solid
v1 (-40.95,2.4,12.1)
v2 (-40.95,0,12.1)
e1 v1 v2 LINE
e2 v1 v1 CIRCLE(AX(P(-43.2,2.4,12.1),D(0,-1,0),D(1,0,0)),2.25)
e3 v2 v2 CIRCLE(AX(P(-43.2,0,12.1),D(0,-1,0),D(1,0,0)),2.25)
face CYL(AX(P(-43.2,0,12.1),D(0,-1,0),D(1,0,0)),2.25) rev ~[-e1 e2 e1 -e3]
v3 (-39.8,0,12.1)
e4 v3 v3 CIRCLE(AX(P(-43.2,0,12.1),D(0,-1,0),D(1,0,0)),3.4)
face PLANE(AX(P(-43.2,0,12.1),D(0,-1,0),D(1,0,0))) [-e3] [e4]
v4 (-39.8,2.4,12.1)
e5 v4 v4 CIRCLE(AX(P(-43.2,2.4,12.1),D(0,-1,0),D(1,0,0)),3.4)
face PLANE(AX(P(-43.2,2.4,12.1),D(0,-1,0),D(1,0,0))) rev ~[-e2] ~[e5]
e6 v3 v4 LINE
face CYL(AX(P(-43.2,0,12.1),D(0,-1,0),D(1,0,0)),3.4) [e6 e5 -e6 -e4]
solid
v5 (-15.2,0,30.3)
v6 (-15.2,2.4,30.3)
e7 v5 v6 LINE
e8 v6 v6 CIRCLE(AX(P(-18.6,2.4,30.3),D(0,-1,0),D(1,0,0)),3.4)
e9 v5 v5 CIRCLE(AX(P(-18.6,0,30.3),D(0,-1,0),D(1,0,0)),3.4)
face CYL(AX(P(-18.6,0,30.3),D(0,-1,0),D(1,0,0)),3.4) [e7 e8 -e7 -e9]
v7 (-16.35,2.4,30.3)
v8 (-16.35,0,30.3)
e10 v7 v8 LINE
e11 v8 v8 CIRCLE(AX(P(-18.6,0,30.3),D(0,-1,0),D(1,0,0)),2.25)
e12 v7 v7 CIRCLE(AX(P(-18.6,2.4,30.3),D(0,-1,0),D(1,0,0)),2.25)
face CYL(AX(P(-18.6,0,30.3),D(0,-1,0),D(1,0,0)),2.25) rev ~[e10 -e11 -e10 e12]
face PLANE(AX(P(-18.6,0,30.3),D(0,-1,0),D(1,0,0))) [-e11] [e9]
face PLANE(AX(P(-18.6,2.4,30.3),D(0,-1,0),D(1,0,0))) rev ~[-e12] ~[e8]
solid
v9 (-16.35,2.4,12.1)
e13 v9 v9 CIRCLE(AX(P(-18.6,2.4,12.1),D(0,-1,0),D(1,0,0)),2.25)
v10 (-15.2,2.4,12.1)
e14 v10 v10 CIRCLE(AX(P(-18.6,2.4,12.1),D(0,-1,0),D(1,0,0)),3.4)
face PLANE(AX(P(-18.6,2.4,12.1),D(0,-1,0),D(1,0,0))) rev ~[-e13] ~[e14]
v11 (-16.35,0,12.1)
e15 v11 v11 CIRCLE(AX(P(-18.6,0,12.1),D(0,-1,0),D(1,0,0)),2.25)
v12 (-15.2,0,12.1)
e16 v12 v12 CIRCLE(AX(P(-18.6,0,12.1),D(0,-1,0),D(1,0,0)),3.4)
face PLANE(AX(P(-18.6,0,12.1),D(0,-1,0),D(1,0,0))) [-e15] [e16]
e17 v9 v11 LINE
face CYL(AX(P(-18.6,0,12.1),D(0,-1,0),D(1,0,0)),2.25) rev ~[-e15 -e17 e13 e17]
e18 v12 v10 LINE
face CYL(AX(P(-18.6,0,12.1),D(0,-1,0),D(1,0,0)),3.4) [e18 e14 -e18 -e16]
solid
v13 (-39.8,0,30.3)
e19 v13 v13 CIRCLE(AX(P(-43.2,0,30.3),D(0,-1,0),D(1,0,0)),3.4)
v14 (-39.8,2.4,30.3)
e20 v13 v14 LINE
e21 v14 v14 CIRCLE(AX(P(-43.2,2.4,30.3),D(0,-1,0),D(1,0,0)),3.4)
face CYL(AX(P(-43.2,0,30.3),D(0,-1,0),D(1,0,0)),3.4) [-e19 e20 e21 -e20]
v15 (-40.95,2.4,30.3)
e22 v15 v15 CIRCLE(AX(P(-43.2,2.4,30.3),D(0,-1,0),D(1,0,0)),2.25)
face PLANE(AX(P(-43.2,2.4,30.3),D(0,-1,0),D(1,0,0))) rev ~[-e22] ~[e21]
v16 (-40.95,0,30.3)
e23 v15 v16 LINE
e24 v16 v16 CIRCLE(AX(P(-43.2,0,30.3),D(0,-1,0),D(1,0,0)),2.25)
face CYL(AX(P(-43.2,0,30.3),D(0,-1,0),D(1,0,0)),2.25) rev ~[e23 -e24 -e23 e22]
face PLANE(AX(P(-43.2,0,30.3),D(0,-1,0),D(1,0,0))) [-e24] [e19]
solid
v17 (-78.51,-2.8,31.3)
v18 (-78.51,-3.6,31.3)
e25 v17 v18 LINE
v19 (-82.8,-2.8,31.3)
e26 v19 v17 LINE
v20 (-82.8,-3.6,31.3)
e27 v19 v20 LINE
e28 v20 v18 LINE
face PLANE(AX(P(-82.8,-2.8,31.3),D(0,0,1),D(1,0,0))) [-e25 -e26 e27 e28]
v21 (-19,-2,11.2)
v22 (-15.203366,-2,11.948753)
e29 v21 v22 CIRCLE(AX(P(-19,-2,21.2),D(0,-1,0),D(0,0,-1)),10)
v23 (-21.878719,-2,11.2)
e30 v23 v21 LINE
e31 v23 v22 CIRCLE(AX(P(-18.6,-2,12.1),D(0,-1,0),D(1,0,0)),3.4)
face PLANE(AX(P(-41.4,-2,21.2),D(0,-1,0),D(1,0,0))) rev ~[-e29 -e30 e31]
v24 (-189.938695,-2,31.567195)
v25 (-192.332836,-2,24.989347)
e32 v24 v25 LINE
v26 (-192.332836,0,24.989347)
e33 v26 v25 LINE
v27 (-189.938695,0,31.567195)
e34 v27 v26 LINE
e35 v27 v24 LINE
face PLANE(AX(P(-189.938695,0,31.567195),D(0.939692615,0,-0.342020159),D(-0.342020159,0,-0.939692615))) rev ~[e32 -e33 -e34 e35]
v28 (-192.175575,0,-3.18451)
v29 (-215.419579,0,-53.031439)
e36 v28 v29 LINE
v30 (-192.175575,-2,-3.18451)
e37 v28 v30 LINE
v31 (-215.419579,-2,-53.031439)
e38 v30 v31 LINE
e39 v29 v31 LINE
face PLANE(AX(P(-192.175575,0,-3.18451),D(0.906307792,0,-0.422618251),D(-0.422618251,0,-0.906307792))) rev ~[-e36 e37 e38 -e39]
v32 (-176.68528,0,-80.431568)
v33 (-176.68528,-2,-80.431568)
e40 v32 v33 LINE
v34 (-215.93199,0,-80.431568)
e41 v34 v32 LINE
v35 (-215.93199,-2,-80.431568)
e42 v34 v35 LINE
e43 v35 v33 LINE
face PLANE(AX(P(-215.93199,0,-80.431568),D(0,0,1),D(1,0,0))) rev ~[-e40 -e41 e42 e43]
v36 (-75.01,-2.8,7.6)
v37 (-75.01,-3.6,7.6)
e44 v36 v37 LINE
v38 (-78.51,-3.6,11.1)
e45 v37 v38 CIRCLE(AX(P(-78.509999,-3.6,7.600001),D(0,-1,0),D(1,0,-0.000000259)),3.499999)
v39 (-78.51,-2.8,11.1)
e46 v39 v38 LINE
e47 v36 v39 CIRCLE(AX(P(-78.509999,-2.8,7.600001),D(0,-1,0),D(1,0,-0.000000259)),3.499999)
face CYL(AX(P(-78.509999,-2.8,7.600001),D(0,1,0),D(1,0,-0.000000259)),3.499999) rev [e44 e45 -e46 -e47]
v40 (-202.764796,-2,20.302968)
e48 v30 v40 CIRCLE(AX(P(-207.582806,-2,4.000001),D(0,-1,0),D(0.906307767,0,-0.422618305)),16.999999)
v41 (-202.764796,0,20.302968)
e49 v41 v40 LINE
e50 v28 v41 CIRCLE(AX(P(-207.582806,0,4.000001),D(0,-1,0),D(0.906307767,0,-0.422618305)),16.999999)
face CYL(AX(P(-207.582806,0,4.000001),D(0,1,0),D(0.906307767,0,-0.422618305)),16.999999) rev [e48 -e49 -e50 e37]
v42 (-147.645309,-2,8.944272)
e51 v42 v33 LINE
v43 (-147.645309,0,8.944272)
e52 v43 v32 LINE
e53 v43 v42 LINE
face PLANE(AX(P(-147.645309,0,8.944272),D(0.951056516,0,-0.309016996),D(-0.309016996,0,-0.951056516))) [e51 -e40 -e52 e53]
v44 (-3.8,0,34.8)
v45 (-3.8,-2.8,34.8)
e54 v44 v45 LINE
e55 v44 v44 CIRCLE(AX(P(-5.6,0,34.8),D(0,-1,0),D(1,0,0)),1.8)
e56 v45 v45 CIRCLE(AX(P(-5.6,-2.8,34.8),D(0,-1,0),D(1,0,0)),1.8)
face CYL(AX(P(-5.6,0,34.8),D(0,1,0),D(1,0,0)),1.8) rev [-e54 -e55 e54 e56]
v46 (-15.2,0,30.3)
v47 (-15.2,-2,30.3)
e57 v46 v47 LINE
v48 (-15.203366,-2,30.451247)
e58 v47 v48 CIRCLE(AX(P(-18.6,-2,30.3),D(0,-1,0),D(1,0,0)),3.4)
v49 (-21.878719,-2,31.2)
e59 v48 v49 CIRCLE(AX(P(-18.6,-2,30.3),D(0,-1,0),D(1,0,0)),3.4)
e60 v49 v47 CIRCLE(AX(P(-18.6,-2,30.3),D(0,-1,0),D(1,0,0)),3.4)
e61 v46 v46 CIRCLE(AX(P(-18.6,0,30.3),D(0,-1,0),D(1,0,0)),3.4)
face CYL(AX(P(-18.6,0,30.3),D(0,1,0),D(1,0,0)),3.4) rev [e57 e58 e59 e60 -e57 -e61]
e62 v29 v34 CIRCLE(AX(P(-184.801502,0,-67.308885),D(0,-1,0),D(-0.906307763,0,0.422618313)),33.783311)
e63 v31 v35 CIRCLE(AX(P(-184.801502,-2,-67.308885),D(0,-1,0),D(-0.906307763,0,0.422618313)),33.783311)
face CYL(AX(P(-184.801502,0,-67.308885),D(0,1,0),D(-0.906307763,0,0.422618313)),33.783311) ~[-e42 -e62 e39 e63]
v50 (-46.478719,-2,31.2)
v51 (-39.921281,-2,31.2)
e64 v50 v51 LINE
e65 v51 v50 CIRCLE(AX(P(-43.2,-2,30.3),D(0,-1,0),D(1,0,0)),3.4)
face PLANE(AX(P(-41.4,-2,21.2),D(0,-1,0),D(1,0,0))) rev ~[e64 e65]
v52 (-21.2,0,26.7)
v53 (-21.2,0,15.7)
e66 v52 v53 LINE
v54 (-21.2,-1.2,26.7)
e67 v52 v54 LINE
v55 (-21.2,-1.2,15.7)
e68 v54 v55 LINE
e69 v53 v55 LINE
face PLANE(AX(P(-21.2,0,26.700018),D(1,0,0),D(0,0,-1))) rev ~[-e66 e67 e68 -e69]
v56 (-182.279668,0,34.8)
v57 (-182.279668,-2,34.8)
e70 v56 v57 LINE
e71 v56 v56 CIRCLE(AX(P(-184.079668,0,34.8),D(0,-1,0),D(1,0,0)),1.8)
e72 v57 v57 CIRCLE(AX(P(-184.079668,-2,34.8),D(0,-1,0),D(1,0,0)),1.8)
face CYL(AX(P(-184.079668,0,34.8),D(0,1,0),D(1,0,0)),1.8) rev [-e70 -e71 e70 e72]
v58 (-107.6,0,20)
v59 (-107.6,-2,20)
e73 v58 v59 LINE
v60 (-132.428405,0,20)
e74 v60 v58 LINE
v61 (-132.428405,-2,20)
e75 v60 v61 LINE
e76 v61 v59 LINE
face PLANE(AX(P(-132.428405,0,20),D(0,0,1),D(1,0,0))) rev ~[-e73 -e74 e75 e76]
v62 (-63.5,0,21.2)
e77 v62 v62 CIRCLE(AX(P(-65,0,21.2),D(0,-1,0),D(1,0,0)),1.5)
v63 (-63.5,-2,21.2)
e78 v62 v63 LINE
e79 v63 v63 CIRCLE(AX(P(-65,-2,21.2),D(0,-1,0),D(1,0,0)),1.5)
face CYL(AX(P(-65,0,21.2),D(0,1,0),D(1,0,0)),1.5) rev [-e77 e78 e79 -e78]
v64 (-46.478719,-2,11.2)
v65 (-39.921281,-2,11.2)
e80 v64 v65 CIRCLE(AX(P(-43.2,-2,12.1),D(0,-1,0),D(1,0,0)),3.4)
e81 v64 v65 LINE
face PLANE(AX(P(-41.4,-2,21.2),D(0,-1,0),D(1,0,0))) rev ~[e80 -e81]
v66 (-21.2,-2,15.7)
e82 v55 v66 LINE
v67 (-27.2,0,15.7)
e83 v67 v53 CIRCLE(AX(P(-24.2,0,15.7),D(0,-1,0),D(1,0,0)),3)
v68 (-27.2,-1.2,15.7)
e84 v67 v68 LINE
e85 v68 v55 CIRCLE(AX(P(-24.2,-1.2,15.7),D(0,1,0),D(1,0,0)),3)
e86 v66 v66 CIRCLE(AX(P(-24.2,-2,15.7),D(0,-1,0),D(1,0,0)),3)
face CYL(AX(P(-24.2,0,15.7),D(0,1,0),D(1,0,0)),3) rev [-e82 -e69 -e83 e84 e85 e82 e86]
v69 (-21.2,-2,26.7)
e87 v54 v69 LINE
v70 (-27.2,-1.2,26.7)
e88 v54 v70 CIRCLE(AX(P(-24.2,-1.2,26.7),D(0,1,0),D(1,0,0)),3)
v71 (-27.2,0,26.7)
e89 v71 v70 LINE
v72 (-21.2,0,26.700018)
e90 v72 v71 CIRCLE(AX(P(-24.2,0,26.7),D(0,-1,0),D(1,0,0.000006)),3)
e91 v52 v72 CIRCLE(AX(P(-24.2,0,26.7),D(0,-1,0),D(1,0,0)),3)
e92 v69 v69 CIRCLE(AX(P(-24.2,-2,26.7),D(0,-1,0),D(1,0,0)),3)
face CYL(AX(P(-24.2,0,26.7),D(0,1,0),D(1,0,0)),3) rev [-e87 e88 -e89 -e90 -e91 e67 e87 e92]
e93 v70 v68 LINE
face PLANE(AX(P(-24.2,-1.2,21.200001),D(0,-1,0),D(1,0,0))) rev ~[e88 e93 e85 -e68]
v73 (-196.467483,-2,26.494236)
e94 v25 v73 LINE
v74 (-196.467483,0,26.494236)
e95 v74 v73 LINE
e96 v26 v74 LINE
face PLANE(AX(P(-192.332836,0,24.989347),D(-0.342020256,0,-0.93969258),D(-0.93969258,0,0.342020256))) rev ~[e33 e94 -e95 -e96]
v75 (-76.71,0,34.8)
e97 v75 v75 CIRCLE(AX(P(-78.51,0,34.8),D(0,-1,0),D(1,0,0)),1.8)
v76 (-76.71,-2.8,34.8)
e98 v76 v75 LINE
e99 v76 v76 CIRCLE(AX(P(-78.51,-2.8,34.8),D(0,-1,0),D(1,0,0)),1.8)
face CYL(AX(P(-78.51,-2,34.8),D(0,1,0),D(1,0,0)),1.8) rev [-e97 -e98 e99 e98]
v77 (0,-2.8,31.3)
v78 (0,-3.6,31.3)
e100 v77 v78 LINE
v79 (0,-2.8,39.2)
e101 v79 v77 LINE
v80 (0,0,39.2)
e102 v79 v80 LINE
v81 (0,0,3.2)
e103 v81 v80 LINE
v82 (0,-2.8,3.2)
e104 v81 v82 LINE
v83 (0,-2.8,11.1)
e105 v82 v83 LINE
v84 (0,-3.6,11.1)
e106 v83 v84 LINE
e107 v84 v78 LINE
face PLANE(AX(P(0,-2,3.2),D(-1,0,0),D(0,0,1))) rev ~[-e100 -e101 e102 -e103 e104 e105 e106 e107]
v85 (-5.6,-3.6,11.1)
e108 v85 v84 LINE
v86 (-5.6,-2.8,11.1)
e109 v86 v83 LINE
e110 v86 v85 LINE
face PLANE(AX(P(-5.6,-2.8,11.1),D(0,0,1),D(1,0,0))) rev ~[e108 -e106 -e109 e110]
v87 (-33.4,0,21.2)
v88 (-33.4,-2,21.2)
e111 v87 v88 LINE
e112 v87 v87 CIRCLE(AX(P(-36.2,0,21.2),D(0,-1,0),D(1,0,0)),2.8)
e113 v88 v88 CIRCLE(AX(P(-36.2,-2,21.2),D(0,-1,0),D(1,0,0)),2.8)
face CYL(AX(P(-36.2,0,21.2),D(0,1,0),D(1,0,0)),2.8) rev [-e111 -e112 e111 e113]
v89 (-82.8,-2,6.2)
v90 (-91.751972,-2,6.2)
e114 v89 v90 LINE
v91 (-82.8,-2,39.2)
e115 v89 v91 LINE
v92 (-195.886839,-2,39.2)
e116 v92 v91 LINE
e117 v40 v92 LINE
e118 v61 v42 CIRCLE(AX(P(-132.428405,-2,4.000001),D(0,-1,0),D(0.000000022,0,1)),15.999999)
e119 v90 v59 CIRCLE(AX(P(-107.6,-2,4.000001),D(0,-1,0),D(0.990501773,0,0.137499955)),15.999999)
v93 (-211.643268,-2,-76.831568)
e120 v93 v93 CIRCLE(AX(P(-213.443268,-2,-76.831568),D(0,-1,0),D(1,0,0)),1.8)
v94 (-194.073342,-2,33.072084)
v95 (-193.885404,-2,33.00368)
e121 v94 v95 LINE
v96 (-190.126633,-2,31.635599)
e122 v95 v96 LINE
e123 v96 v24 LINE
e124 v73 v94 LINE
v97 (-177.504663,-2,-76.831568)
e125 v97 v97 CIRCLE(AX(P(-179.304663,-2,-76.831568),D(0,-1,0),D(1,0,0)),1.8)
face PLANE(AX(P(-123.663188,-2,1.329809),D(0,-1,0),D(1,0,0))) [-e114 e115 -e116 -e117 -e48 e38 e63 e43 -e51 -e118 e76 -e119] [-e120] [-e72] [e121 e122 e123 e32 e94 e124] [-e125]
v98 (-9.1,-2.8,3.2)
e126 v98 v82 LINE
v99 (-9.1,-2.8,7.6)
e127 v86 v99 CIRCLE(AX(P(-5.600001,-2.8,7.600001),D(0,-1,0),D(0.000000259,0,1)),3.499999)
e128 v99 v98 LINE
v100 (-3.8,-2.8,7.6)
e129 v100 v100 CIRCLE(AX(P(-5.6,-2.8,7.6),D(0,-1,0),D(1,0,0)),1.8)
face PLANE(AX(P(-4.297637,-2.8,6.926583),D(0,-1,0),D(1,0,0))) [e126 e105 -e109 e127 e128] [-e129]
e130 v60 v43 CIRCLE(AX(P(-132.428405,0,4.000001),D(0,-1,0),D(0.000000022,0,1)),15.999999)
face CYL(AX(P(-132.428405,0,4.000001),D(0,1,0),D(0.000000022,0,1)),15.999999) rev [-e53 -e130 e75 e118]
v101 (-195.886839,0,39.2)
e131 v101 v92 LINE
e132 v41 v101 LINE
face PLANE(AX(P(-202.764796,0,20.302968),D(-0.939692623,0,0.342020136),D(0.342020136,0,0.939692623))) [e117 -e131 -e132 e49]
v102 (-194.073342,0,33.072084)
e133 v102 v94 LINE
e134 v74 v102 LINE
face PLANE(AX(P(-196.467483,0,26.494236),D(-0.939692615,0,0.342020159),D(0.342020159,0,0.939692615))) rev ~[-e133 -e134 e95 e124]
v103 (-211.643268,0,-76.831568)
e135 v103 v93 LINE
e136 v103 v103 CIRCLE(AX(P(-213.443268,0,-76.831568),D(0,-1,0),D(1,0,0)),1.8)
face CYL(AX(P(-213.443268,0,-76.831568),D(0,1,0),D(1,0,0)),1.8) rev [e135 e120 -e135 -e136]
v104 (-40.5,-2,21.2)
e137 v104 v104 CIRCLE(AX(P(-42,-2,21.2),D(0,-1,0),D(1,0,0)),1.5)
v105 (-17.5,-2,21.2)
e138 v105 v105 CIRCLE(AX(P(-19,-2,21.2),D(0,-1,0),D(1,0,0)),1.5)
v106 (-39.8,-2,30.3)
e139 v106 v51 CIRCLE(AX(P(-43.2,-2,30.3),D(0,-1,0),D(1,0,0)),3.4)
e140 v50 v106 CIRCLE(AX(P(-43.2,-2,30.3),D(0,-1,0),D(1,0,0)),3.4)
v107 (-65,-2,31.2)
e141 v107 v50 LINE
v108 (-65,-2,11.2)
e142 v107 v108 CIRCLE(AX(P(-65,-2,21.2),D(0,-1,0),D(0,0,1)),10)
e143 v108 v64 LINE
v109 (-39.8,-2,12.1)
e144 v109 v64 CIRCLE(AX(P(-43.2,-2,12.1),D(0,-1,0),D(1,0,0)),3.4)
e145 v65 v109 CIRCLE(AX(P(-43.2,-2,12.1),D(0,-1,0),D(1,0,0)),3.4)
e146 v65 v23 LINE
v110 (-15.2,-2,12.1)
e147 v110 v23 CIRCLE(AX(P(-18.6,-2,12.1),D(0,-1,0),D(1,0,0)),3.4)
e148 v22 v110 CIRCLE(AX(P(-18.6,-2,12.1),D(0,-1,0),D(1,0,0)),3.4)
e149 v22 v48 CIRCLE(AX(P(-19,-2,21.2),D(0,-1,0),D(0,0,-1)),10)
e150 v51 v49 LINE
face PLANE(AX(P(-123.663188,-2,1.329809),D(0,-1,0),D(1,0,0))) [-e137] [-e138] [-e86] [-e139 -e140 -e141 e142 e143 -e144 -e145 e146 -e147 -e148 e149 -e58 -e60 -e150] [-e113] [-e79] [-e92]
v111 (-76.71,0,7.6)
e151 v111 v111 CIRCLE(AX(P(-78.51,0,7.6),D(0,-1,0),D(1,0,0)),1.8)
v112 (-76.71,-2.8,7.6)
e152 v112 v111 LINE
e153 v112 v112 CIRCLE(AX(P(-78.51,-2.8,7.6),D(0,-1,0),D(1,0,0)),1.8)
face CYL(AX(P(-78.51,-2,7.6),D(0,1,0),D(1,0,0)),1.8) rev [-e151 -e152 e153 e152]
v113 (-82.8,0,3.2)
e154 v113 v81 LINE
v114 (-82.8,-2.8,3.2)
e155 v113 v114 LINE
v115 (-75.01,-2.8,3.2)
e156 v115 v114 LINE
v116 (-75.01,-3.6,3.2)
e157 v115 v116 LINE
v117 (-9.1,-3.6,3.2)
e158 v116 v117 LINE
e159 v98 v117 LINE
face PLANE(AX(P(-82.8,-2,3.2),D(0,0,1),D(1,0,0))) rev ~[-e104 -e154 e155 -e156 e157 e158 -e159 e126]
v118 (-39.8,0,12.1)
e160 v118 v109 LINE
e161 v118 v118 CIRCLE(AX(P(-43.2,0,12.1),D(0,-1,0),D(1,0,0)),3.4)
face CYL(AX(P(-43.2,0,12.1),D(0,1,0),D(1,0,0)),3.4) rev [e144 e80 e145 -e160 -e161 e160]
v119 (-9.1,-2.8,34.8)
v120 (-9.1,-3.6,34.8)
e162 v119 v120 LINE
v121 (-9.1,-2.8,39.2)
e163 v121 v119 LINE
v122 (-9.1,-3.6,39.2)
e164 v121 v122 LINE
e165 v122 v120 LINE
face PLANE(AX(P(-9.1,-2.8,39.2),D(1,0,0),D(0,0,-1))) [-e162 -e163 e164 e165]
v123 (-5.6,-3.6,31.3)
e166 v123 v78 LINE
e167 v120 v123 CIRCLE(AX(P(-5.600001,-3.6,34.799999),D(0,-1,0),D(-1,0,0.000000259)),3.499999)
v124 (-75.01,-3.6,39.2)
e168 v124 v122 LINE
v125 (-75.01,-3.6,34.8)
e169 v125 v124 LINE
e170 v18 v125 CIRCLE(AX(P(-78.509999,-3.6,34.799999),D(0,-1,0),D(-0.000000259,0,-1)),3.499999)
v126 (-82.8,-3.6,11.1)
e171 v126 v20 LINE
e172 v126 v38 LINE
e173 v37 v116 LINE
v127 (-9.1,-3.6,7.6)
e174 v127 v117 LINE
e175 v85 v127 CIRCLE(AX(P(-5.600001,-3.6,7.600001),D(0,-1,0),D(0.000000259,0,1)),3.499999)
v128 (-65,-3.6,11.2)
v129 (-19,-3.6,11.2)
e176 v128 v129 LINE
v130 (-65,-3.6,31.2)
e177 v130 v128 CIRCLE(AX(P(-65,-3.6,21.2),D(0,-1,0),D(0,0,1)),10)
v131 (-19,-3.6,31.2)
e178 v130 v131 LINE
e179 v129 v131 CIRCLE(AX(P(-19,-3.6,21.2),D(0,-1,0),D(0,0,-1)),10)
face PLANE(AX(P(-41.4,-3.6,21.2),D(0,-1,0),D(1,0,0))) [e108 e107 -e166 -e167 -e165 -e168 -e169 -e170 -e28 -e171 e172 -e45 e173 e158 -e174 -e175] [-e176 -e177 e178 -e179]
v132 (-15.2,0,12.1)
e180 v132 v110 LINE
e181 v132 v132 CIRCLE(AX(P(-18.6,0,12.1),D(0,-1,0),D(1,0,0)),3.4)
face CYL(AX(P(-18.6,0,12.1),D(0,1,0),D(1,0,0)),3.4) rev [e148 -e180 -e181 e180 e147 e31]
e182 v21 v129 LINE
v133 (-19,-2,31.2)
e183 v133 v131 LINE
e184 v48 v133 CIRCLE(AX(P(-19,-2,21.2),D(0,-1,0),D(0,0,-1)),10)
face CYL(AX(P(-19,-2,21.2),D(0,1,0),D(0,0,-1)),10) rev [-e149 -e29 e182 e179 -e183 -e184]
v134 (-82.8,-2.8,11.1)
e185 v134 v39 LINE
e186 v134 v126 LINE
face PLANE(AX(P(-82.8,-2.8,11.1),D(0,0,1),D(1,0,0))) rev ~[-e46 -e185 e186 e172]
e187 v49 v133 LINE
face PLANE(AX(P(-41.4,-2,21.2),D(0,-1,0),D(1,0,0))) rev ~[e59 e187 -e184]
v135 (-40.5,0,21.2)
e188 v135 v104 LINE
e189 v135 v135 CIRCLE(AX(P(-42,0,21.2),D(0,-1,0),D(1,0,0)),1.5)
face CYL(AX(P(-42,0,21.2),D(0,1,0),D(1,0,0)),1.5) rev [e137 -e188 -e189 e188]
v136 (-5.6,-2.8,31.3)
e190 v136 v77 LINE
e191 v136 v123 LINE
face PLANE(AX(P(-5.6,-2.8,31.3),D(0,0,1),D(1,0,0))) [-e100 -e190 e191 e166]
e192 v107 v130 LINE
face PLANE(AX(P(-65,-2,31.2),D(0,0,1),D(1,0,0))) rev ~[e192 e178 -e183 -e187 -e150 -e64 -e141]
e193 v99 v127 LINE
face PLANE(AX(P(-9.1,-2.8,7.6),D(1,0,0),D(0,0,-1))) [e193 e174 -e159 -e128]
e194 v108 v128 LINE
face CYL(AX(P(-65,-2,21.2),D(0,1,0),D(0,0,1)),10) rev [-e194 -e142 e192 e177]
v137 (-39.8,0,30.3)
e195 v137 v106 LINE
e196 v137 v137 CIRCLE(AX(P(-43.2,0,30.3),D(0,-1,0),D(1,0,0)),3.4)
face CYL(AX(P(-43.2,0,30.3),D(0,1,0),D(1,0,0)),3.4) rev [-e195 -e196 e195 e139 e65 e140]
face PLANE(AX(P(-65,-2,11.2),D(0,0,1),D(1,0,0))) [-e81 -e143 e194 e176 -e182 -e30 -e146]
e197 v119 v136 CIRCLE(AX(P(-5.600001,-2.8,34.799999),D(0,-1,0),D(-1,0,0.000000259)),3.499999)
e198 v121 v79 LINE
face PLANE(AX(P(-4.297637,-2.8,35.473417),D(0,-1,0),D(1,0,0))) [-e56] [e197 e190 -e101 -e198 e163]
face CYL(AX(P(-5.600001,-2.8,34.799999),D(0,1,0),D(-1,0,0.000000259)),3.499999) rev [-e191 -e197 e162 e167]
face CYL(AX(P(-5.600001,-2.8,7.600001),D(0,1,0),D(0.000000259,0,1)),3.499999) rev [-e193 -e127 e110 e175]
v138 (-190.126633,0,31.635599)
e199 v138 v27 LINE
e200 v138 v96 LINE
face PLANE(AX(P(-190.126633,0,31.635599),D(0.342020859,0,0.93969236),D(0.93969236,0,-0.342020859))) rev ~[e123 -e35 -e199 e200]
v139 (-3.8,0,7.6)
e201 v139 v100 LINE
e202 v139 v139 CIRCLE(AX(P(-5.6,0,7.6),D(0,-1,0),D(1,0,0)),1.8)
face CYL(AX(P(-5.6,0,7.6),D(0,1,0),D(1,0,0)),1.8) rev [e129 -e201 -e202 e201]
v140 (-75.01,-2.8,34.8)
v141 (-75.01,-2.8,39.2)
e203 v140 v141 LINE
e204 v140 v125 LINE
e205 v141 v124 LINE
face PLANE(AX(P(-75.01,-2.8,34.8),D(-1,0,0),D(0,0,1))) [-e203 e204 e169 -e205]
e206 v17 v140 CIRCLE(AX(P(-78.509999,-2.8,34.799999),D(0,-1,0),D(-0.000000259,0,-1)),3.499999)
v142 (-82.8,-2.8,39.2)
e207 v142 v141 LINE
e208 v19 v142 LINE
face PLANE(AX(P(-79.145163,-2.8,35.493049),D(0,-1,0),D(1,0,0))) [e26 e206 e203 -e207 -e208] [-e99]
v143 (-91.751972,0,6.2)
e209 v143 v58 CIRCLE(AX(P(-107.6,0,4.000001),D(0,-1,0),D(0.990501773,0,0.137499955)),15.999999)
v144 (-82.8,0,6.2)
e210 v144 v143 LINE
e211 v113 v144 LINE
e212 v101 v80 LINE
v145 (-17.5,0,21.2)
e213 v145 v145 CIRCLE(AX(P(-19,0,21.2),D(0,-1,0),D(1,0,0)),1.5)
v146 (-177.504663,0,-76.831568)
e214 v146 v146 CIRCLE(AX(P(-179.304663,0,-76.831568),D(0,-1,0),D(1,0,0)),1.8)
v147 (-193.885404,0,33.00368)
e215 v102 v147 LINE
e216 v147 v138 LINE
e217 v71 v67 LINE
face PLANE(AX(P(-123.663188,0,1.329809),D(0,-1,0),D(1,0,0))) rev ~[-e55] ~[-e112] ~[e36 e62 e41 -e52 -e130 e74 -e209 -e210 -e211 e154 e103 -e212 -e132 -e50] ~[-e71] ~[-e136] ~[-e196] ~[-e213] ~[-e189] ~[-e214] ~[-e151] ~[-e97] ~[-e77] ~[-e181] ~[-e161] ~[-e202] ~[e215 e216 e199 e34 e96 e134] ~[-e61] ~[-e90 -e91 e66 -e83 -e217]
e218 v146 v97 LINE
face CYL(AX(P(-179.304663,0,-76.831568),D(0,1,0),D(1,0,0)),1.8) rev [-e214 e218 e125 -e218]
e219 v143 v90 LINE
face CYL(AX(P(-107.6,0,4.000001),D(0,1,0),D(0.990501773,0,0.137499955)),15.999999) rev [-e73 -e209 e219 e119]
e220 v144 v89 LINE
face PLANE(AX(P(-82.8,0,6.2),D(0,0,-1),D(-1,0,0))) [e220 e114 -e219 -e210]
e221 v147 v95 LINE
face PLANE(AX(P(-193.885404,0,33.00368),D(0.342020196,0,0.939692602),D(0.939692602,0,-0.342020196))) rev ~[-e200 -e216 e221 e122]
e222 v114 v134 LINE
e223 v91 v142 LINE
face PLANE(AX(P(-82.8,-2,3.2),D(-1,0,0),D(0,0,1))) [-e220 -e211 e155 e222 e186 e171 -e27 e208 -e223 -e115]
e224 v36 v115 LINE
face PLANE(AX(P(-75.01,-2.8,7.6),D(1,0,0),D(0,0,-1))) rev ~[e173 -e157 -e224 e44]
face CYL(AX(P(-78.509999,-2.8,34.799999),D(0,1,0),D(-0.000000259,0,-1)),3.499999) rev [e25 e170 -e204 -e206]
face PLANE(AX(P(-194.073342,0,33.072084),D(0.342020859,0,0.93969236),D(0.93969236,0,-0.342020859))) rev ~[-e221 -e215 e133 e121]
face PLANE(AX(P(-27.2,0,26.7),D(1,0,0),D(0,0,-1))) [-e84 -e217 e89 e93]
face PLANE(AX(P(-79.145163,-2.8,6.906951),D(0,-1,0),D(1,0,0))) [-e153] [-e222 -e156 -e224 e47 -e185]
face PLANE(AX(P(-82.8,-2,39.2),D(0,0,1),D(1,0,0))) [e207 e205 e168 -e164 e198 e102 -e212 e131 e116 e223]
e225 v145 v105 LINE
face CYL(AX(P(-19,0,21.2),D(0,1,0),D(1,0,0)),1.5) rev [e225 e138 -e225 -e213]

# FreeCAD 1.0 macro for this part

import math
import FreeCAD as App
import Part
import Sketcher
from FreeCAD import Vector
Q = App.Units.Quantity


def add_polygon(sketch, points):
    """Adds a closed chain of lines whose ends are joined by coincident constraints."""
    first, n = sketch.GeometryCount, len(points)
    for a, b in zip(points, points[1:] + points[:1]):
        sketch.addGeometry(Part.LineSegment(App.Vector(*a, 0), App.Vector(*b, 0)), False)
    for i in range(n):
        sketch.addConstraint(Sketcher.Constraint("Coincident", first + i, 2, first + (i + 1) % n, 1))

doc = App.newDocument("Part")
body = doc.addObject("PartDesign::Body", "Body")
body.AllowCompound = True

sketch1 = body.newObject("Sketcher::SketchObject", "Sketch")
sketch1.AttachmentSupport = (doc.getObject("XZ_Plane"), [""])
sketch1.MapMode = "FlatFace"
sketch1.addGeometry([
    Part.ArcOfCircle(Part.Circle(Vector(-78.5, 34.8, 0), Vector(0, 0, 1), 3.5), math.radians(-90), math.radians(0)),
    Part.LineSegment(Vector(-75, 34.8, 0), Vector(-75, 39.2, 0)),
    Part.LineSegment(Vector(-75, 39.2, 0), Vector(-82.8, 39.2, 0)),
    Part.LineSegment(Vector(-82.8, 39.2, 0), Vector(-82.8, 31.3, 0)),
    Part.LineSegment(Vector(-82.8, 31.3, 0), Vector(-78.5, 31.3, 0)),
    Part.Circle(Vector(-78.5, 34.8, 0), Vector(0, 0, 1), 1.8),
    Part.ArcOfCircle(Part.Circle(Vector(-5.6, 34.8, 0), Vector(0, 0, 1), 3.5), math.radians(180), math.radians(270)),
    Part.LineSegment(Vector(-5.6, 31.3, 0), Vector(0, 31.3, 0)),
    Part.LineSegment(Vector(0, 31.3, 0), Vector(0, 39.2, 0)),
    Part.LineSegment(Vector(0, 39.2, 0), Vector(-9.1, 39.2, 0)),
    Part.LineSegment(Vector(-9.1, 39.2, 0), Vector(-9.1, 34.8, 0)),
    Part.Circle(Vector(-5.6, 34.8, 0), Vector(0, 0, 1), 1.8),
    Part.ArcOfCircle(Part.Circle(Vector(-78.5, 7.6, 0), Vector(0, 0, 1), 3.5), math.radians(0), math.radians(90)),
    Part.LineSegment(Vector(-78.5, 11.1, 0), Vector(-82.8, 11.1, 0)),
    Part.LineSegment(Vector(-82.8, 11.1, 0), Vector(-82.8, 3.2, 0)),
    Part.LineSegment(Vector(-82.8, 3.2, 0), Vector(-75, 3.2, 0)),
    Part.LineSegment(Vector(-75, 3.2, 0), Vector(-75, 7.6, 0)),
    Part.Circle(Vector(-78.5, 7.6, 0), Vector(0, 0, 1), 1.8),
    Part.ArcOfCircle(Part.Circle(Vector(-5.6, 7.6, 0), Vector(0, 0, 1), 3.5), math.radians(90), math.radians(180)),
    Part.LineSegment(Vector(-9.1, 7.6, 0), Vector(-9.1, 3.2, 0)),
    Part.LineSegment(Vector(-9.1, 3.2, 0), Vector(0, 3.2, 0)),
    Part.LineSegment(Vector(0, 3.2, 0), Vector(0, 11.1, 0)),
    Part.LineSegment(Vector(0, 11.1, 0), Vector(-5.6, 11.1, 0)),
    Part.Circle(Vector(-5.6, 7.6, 0), Vector(0, 0, 1), 1.8),
], False)
sketch1.addConstraint([
    Sketcher.Constraint("Tangent", 0, 2, 1, 1),
    Sketcher.Constraint("Coincident", 1, 2, 2, 1),
    Sketcher.Constraint("Coincident", 2, 2, 3, 1),
    Sketcher.Constraint("Coincident", 3, 2, 4, 1),
    Sketcher.Constraint("Tangent", 4, 2, 0, 1),
    Sketcher.Constraint("Tangent", 6, 2, 7, 1),
    Sketcher.Constraint("Coincident", 7, 2, 8, 1),
    Sketcher.Constraint("Coincident", 8, 2, 9, 1),
    Sketcher.Constraint("Coincident", 9, 2, 10, 1),
    Sketcher.Constraint("Tangent", 10, 2, 6, 1),
    Sketcher.Constraint("Tangent", 12, 2, 13, 1),
    Sketcher.Constraint("Coincident", 13, 2, 14, 1),
    Sketcher.Constraint("Coincident", 14, 2, 15, 1),
    Sketcher.Constraint("Coincident", 15, 2, 16, 1),
    Sketcher.Constraint("Tangent", 16, 2, 12, 1),
    Sketcher.Constraint("Tangent", 18, 2, 19, 1),
    Sketcher.Constraint("Coincident", 19, 2, 20, 1),
    Sketcher.Constraint("Coincident", 20, 2, 21, 1),
    Sketcher.Constraint("Coincident", 21, 2, 22, 1),
    Sketcher.Constraint("Tangent", 22, 2, 18, 1),
    Sketcher.Constraint("Vertical", 1),
    Sketcher.Constraint("Horizontal", 2),
    Sketcher.Constraint("Vertical", 3),
    Sketcher.Constraint("Horizontal", 4),
    Sketcher.Constraint("Horizontal", 7),
    Sketcher.Constraint("Vertical", 8),
    Sketcher.Constraint("Horizontal", 9),
    Sketcher.Constraint("Vertical", 10),
    Sketcher.Constraint("Horizontal", 13),
    Sketcher.Constraint("Vertical", 14),
    Sketcher.Constraint("Horizontal", 15),
    Sketcher.Constraint("Vertical", 16),
    Sketcher.Constraint("Vertical", 19),
    Sketcher.Constraint("Horizontal", 20),
    Sketcher.Constraint("Vertical", 21),
    Sketcher.Constraint("Horizontal", 22),
    Sketcher.Constraint("Coincident", 5, 3, 0, 3),
    Sketcher.Constraint("Coincident", 11, 3, 6, 3),
    Sketcher.Constraint("Coincident", 17, 3, 12, 3),
    Sketcher.Constraint("Coincident", 23, 3, 18, 3),
    Sketcher.Constraint("Equal", 0, 6),
    Sketcher.Constraint("Equal", 5, 11),
    Sketcher.Constraint("Equal", 6, 12),
    Sketcher.Constraint("Equal", 11, 17),
    Sketcher.Constraint("Equal", 12, 18),
    Sketcher.Constraint("Equal", 17, 23),
    Sketcher.Constraint("PointOnObject", 7, 2, -2),
    Sketcher.Constraint("PointOnObject", 20, 2, -2),
    Sketcher.Constraint("Horizontal", 5, 3, 6, 3),
    Sketcher.Constraint("Horizontal", 17, 3, 18, 3),
    Sketcher.Constraint("Horizontal", 2, 2, 8, 2),
    Sketcher.Constraint("Horizontal", 15, 2, 19, 2),
    Sketcher.Constraint("Vertical", 5, 3, 12, 3),
    Sketcher.Constraint("Vertical", 11, 3, 18, 3),
    Sketcher.Constraint("Vertical", 3, 2, 13, 2),
    Sketcher.Constraint("Equal", 8, 14),
    Sketcher.Constraint("Diameter", 5, 3.6),
    Sketcher.Constraint("Radius", 0, 3.499999),
    Sketcher.Constraint("DistanceX", 7, 1, 7, 2, 5.6),
    Sketcher.Constraint("DistanceY", 1, 1, 1, 2, 4.4),
    Sketcher.Constraint("DistanceX", 2, 2, 2, 1, 7.79),
    Sketcher.Constraint("DistanceY", -1, 1, 0, 3, 34.799999),
    Sketcher.Constraint("DistanceY", -1, 1, 12, 3, 7.600001),
    Sketcher.Constraint("DistanceX", 2, 2, -1, 1, 82.8),
])
pad1 = body.newObject("PartDesign::Pad", "Pad")
pad1.Profile = sketch1
pad1.Length = 0.8
body2 = doc.addObject("PartDesign::Body", "Body001")
body2.AllowCompound = True
doc.recompute()

body.Placement = App.Placement(Vector(0, -2.8, 0), App.Rotation(Vector(0, 0, 1), 0))
boolean = body2.newObject("PartDesign::Boolean", "Boolean")
boolean.Type = "Fuse"
boolean.addObjects([body])
body3 = doc.addObject("PartDesign::Body", "Body002")

sketch2 = body3.newObject("Sketcher::SketchObject", "Sketch001")
sketch2.AttachmentSupport = (doc.getObject("XZ_Plane002"), [""])
sketch2.MapMode = "FlatFace"
add_polygon(sketch2, [(-82.8, 39.2), (-82.8, 3.2), (0, 3.2), (0, 39.2)])
sketch2.addGeometry(Part.Circle(Vector(-78.5, 7.6, 0), Vector(0, 0, 1), 1.8), False)
sketch2.addGeometry(Part.Circle(Vector(-5.6, 7.6, 0), Vector(0, 0, 1), 1.8), False)
sketch2.addGeometry(Part.Circle(Vector(-78.5, 34.8, 0), Vector(0, 0, 1), 1.8), False)
sketch2.addGeometry(Part.ArcOfCircle(Part.Circle(Vector(-65, 21.2, 0), Vector(0, 0, 1), 10), math.radians(90), math.radians(270)), False)
sketch2.addGeometry(Part.LineSegment(Vector(-65, 31.2, 0), Vector(-19, 31.2, 0)), False)
sketch2.addGeometry(Part.ArcOfCircle(Part.Circle(Vector(-19, 21.2, 0), Vector(0, 0, 1), 10), math.radians(-90), math.radians(90)), False)
sketch2.addGeometry(Part.LineSegment(Vector(-19, 11.2, 0), Vector(-65, 11.2, 0)), False)
sketch2.addGeometry(Part.Circle(Vector(-5.6, 34.8, 0), Vector(0, 0, 1), 1.8), False)
sketch2.addConstraint([
    Sketcher.Constraint("Tangent", 7, 1, 8, 1),
    Sketcher.Constraint("Tangent", 8, 2, 9, 2),
    Sketcher.Constraint("Tangent", 9, 1, 10, 1),
    Sketcher.Constraint("Tangent", 10, 2, 7, 2),
    Sketcher.Constraint("Vertical", 0),
    Sketcher.Constraint("Horizontal", 1),
    Sketcher.Constraint("Vertical", 2),
    Sketcher.Constraint("Horizontal", 3),
    Sketcher.Constraint("Horizontal", 8),
    Sketcher.Constraint("Horizontal", 10),
    Sketcher.Constraint("Equal", 4, 5),
    Sketcher.Constraint("Equal", 5, 6),
    Sketcher.Constraint("Equal", 6, 11),
    Sketcher.Constraint("PointOnObject", 1, 2, -2),
    Sketcher.Constraint("Horizontal", 4, 3, 5, 3),
    Sketcher.Constraint("Horizontal", 6, 3, 11, 3),
    Sketcher.Constraint("Vertical", 4, 3, 6, 3),
    Sketcher.Constraint("Vertical", 5, 3, 11, 3),
    Sketcher.Constraint("Radius", 7, 10.0),
    Sketcher.Constraint("Diameter", 4, 3.6),
    Sketcher.Constraint("DistanceX", 8, 1, 8, 2, 46.0),
    Sketcher.Constraint("DistanceY", 0, 2, 0, 1, 36.0),
    Sketcher.Constraint("DistanceX", 1, 1, 1, 2, 82.8),
    Sketcher.Constraint("DistanceX", 7, 3, -1, 1, 65.0),
    Sketcher.Constraint("DistanceY", 0, 2, 7, 3, 18.0),
    Sketcher.Constraint("DistanceY", -1, 1, 4, 3, 7.6),
    Sketcher.Constraint("DistanceX", 5, 3, -1, 1, 5.6),
    Sketcher.Constraint("DistanceY", -1, 1, 6, 3, 34.8),
    Sketcher.Constraint("DistanceY", -1, 1, 7, 3, 21.2),
    Sketcher.Constraint("DistanceX", 4, 3, -1, 1, 78.51),
])
pad2 = body3.newObject("PartDesign::Pad", "Pad001")
pad2.Profile = sketch2
pad2.Length = 1.6
body4 = doc.addObject("PartDesign::Body", "Body003")
doc.recompute()

body3.Placement = App.Placement(Vector(0, -2, 0), App.Rotation(Vector(0, 0, 1), 0))
boolean2 = body4.newObject("PartDesign::Boolean", "Boolean001")
boolean2.Type = "Fuse"
boolean2.addObjects([body3])
doc.recompute()

boolean3 = body4.newObject("PartDesign::Boolean", "Boolean002")
boolean3.Type = "Cut"
boolean3.addObjects([body2])
body5 = doc.addObject("PartDesign::Body", "Body004")
body5.AllowCompound = True

sketch3 = body5.newObject("Sketcher::SketchObject", "Sketch002")
sketch3.AttachmentSupport = (doc.getObject("XZ_Plane004"), [""])
sketch3.MapMode = "FlatFace"
sketch3.addGeometry([
    Part.Circle(Vector(-18.6, 12.1, 0), Vector(0, 0, 1), 2.2),
    Part.Circle(Vector(-18.6, 30.3, 0), Vector(0, 0, 1), 2.2),
    Part.Circle(Vector(-43.2, 30.3, 0), Vector(0, 0, 1), 2.2),
    Part.Circle(Vector(-43.2, 12.1, 0), Vector(0, 0, 1), 2.2),
], False)
sketch3.addConstraint([
    Sketcher.Constraint("Equal", 0, 1),
    Sketcher.Constraint("Equal", 1, 2),
    Sketcher.Constraint("Equal", 2, 3),
    Sketcher.Constraint("Horizontal", 1, 3, 2, 3),
    Sketcher.Constraint("Horizontal", 0, 3, 3, 3),
    Sketcher.Constraint("Vertical", 0, 3, 1, 3),
    Sketcher.Constraint("Vertical", 2, 3, 3, 3),
    Sketcher.Constraint("Diameter", 0, 4.5),
    Sketcher.Constraint("DistanceX", 0, 3, -1, 1, 18.6),
    Sketcher.Constraint("DistanceY", -1, 1, 0, 3, 12.1),
    Sketcher.Constraint("DistanceY", -1, 1, 1, 3, 30.3),
    Sketcher.Constraint("DistanceX", 2, 3, -1, 1, 43.2),
])
pad3 = body5.newObject("PartDesign::Pad", "Pad002")
pad3.Profile = sketch3
pad3.Type = "TwoLengths"
pad3.Length = 0.6
pad3.Length2 = 2.4
body6 = doc.addObject("PartDesign::Body", "Body005")
body6.AllowCompound = True

sketch4 = body6.newObject("Sketcher::SketchObject", "Sketch003")
sketch4.AttachmentSupport = (doc.getObject("XZ_Plane005"), [""])
sketch4.MapMode = "FlatFace"
sketch4.addGeometry([
    Part.Circle(Vector(-43.2, 30.3, 0), Vector(0, 0, 1), 3.4),
    Part.Circle(Vector(-18.6, 30.3, 0), Vector(0, 0, 1), 3.4),
    Part.Circle(Vector(-43.2, 12.1, 0), Vector(0, 0, 1), 3.4),
    Part.Circle(Vector(-18.6, 12.1, 0), Vector(0, 0, 1), 3.4),
], False)
sketch4.addConstraint([
    Sketcher.Constraint("Equal", 0, 1),
    Sketcher.Constraint("Equal", 1, 2),
    Sketcher.Constraint("Equal", 2, 3),
    Sketcher.Constraint("Horizontal", 0, 3, 1, 3),
    Sketcher.Constraint("Horizontal", 2, 3, 3, 3),
    Sketcher.Constraint("Vertical", 0, 3, 2, 3),
    Sketcher.Constraint("Vertical", 1, 3, 3, 3),
    Sketcher.Constraint("Diameter", 0, 6.8),
    Sketcher.Constraint("DistanceX", 0, 3, -1, 1, 43.2),
    Sketcher.Constraint("DistanceY", -1, 1, 0, 3, 30.3),
    Sketcher.Constraint("DistanceX", 1, 3, -1, 1, 18.6),
    Sketcher.Constraint("DistanceY", -1, 1, 2, 3, 12.1),
])
pad4 = body6.newObject("PartDesign::Pad", "Pad003")
pad4.Profile = sketch4
pad4.Length = 2.4
pad4.Reversed = True
body7 = doc.addObject("PartDesign::Body", "Body006")

sketch5 = body7.newObject("Sketcher::SketchObject", "Sketch004")
sketch5.AttachmentSupport = (doc.getObject("XZ_Plane006"), [""])
sketch5.MapMode = "FlatFace"
sketch5.addGeometry([
    Part.LineSegment(Vector(-27.2, 26.7, 0), Vector(-27.2, 15.7, 0)),
    Part.ArcOfCircle(Part.Circle(Vector(-24.2, 15.7, 0), Vector(0, 0, 1), 3), math.radians(180), math.radians(360)),
    Part.LineSegment(Vector(-21.2, 15.7, 0), Vector(-21.2, 26.7, 0)),
    Part.ArcOfCircle(Part.Circle(Vector(-24.2, 26.7, 0), Vector(0, 0, 1), 3), math.radians(0), math.radians(180)),
], False)
sketch5.addConstraint([
    Sketcher.Constraint("Tangent", 0, 2, 1, 1),
    Sketcher.Constraint("Tangent", 1, 2, 2, 1),
    Sketcher.Constraint("Coincident", 2, 2, 3, 1),
    Sketcher.Constraint("Tangent", 3, 2, 0, 1),
    Sketcher.Constraint("Vertical", 0),
    Sketcher.Constraint("Vertical", 2),
    Sketcher.Constraint("Radius", 1, 3.0),
    Sketcher.Constraint("DistanceY", 0, 2, 0, 1, 11.0),
    Sketcher.Constraint("DistanceX", 1, 3, -1, 1, 24.2),
    Sketcher.Constraint("DistanceY", -1, 1, 1, 3, 15.7),
    Sketcher.Constraint("DistanceY", 2, 1, 2, 2, 11.000018),
])
pad5 = body7.newObject("PartDesign::Pad", "Pad004")
pad5.Profile = sketch5
pad5.Length = 1.2
body8 = doc.addObject("PartDesign::Body", "Body007")
body8.AllowCompound = True

sketch6 = body8.newObject("Sketcher::SketchObject", "Sketch005")
sketch6.AttachmentSupport = (doc.getObject("XZ_Plane007"), [""])
sketch6.MapMode = "FlatFace"
sketch6.addGeometry(Part.LineSegment(Vector(-82.8, 3.2, 0), Vector(0, 3.2, 0)), False)
sketch6.addGeometry(Part.LineSegment(Vector(0, 3.2, 0), Vector(0, 39.2, 0)), False)
sketch6.addGeometry(Part.LineSegment(Vector(0, 39.2, 0), Vector(-195.89, 39.2, 0)), False)
sketch6.addGeometry(Part.LineSegment(Vector(-195.89, 39.2, 0), Vector(-202.76, 20.3, 0)), False)
sketch6.addGeometry(Part.ArcOfCircle(Part.Circle(Vector(-207.58, 4, 0), Vector(0, 0, 1), 17), math.radians(-25), math.radians(74)), False)
sketch6.addGeometry(Part.LineSegment(Vector(-192.18, -3.18, 0), Vector(-215.42, -53.03, 0)), False)
sketch6.addGeometry(Part.ArcOfCircle(Part.Circle(Vector(-184.8, -67.31, 0), Vector(0, 0, 1), 33.78), math.radians(155), math.radians(203)), False)
sketch6.addGeometry(Part.LineSegment(Vector(-215.93, -80.43, 0), Vector(-176.69, -80.43, 0)), False)
sketch6.addGeometry(Part.LineSegment(Vector(-176.69, -80.43, 0), Vector(-147.65, 8.94, 0)), False)
sketch6.addGeometry(Part.ArcOfCircle(Part.Circle(Vector(-132.43, 4, 0), Vector(0, 0, 1), 16), math.radians(90), math.radians(162)), False)
sketch6.addGeometry(Part.LineSegment(Vector(-132.43, 20, 0), Vector(-107.6, 20, 0)), False)
sketch6.addGeometry(Part.ArcOfCircle(Part.Circle(Vector(-107.6, 4, 0), Vector(0, 0, 1), 16), math.radians(8), math.radians(90)), False)
sketch6.addGeometry(Part.LineSegment(Vector(-91.75, 6.2, 0), Vector(-82.8, 6.2, 0)), False)
sketch6.addGeometry(Part.LineSegment(Vector(-82.8, 6.2, 0), Vector(-82.8, 3.2, 0)), False)
sketch6.addGeometry(Part.Circle(Vector(-213.44, -76.83, 0), Vector(0, 0, 1), 1.8), False)
sketch6.addGeometry(Part.Circle(Vector(-179.3, -76.83, 0), Vector(0, 0, 1), 1.8), False)
add_polygon(sketch6, [(-190.13, 31.64), (-189.94, 31.57), (-192.33, 24.99), (-196.47, 26.49), (-194.07, 33.07), (-193.89, 33)])
sketch6.addGeometry(Part.Circle(Vector(-184.08, 34.8, 0), Vector(0, 0, 1), 1.8), False)
sketch6.addGeometry(Part.Circle(Vector(-78.51, 7.6, 0), Vector(0, 0, 1), 1.8), False)
sketch6.addGeometry(Part.Circle(Vector(-5.6, 7.6, 0), Vector(0, 0, 1), 1.8), False)
sketch6.addGeometry(Part.Circle(Vector(-65, 21.2, 0), Vector(0, 0, 1), 1.5), False)
sketch6.addGeometry(Part.Circle(Vector(-78.51, 34.8, 0), Vector(0, 0, 1), 1.8), False)
sketch6.addGeometry(Part.Circle(Vector(-43.2, 12.1, 0), Vector(0, 0, 1), 3.4), False)
sketch6.addGeometry(Part.Circle(Vector(-42, 21.2, 0), Vector(0, 0, 1), 1.5), False)
sketch6.addGeometry(Part.Circle(Vector(-36.2, 21.2, 0), Vector(0, 0, 1), 2.8), False)
sketch6.addGeometry(Part.Circle(Vector(-18.6, 12.1, 0), Vector(0, 0, 1), 3.4), False)
sketch6.addGeometry(Part.Circle(Vector(-24.2, 15.7, 0), Vector(0, 0, 1), 3), False)
sketch6.addGeometry(Part.Circle(Vector(-19, 21.2, 0), Vector(0, 0, 1), 1.5), False)
sketch6.addGeometry(Part.Circle(Vector(-43.2, 30.3, 0), Vector(0, 0, 1), 3.4), False)
sketch6.addGeometry(Part.Circle(Vector(-24.2, 26.7, 0), Vector(0, 0, 1), 3), False)
sketch6.addGeometry(Part.Circle(Vector(-18.6, 30.3, 0), Vector(0, 0, 1), 3.4), False)
sketch6.addGeometry(Part.Circle(Vector(-5.6, 34.8, 0), Vector(0, 0, 1), 1.8), False)
sketch6.addConstraint([
    Sketcher.Constraint("Coincident", 0, 2, 1, 1),
    Sketcher.Constraint("Coincident", 1, 2, 2, 1),
    Sketcher.Constraint("Coincident", 2, 2, 3, 1),
    Sketcher.Constraint("Coincident", 3, 2, 4, 2),
    Sketcher.Constraint("Tangent", 4, 1, 5, 1),
    Sketcher.Constraint("Tangent", 5, 2, 6, 1),
    Sketcher.Constraint("Coincident", 6, 2, 7, 1),
    Sketcher.Constraint("Coincident", 7, 2, 8, 1),
    Sketcher.Constraint("Tangent", 8, 2, 9, 2),
    Sketcher.Constraint("Tangent", 9, 1, 10, 1),
    Sketcher.Constraint("Tangent", 10, 2, 11, 2),
    Sketcher.Constraint("Coincident", 11, 1, 12, 1),
    Sketcher.Constraint("Coincident", 12, 2, 13, 1),
    Sketcher.Constraint("Coincident", 13, 2, 0, 1),
    Sketcher.Constraint("Horizontal", 0),
    Sketcher.Constraint("Vertical", 1),
    Sketcher.Constraint("Horizontal", 2),
    Sketcher.Constraint("Horizontal", 7),
    Sketcher.Constraint("Horizontal", 10),
    Sketcher.Constraint("Horizontal", 12),
    Sketcher.Constraint("Vertical", 13),
    Sketcher.Constraint("Equal", 9, 11),
    Sketcher.Constraint("Equal", 14, 15),
    Sketcher.Constraint("Equal", 15, 22),
    Sketcher.Constraint("Equal", 22, 23),
    Sketcher.Constraint("Equal", 23, 24),
    Sketcher.Constraint("Equal", 24, 26),
    Sketcher.Constraint("Equal", 25, 28),
    Sketcher.Constraint("Equal", 27, 30),
    Sketcher.Constraint("Equal", 28, 32),
    Sketcher.Constraint("Equal", 30, 33),
    Sketcher.Constraint("Equal", 31, 34),
    Sketcher.Constraint("Equal", 33, 35),
    Sketcher.Constraint("Equal", 26, 36),
    Sketcher.Constraint("PointOnObject", 0, 2, -2),
    Sketcher.Constraint("Perpendicular", 3, 16),
    Sketcher.Constraint("Perpendicular", 16, 17),
    Sketcher.Constraint("Perpendicular", 17, 18),
    Sketcher.Constraint("Perpendicular", 18, 19),
    Sketcher.Constraint("Perpendicular", 19, 20),
    Sketcher.Constraint("Parallel", 20, 21),
    Sketcher.Constraint("Horizontal", 4, 3, 9, 3),
    Sketcher.Constraint("Horizontal", 14, 3, 15, 3),
    Sketcher.Constraint("Horizontal", 23, 3, 24, 3),
    Sketcher.Constraint("Horizontal", 22, 3, 26, 3),
    Sketcher.Constraint("Horizontal", 25, 3, 28, 3),
    Sketcher.Constraint("Horizontal", 28, 3, 29, 3),
    Sketcher.Constraint("Horizontal", 27, 3, 30, 3),
    Sketcher.Constraint("Horizontal", 29, 3, 32, 3),
    Sketcher.Constraint("Horizontal", 33, 3, 35, 3),
    Sketcher.Constraint("Horizontal", 26, 3, 36, 3),
    Sketcher.Constraint("Vertical", 23, 3, 26, 3),
    Sketcher.Constraint("Vertical", 27, 3, 33, 3),
    Sketcher.Constraint("Vertical", 31, 3, 34, 3),
    Sketcher.Constraint("Vertical", 30, 3, 35, 3),
    Sketcher.Constraint("Vertical", 24, 3, 36, 3),
    Sketcher.Constraint("Equal", 16, 20),
    Sketcher.Constraint("Diameter", 25, 3.0),
    Sketcher.Constraint("Diameter", 31, 6.0),
    Sketcher.Constraint("Radius", 4, 16.999999),
    Sketcher.Constraint("Radius", 9, 15.999999),
    Sketcher.Constraint("Diameter", 14, 3.6),
    Sketcher.Constraint("Diameter", 27, 6.8),
    Sketcher.Constraint("Diameter", 29, 5.6),
    Sketcher.Constraint("DistanceY", 1, 1, 1, 2, 36.0),
    Sketcher.Constraint("DistanceY", 13, 2, 13, 1, 3.0),
    Sketcher.Constraint("Angle", 3, Q("-110 deg")),
    Sketcher.Constraint("Angle", 5, Q("-114.999999 deg")),
    Sketcher.Constraint("Angle", 8, Q("72 deg")),
    Sketcher.Constraint("Distance", 5, 55.0),
    Sketcher.Constraint("Distance", 17, 7.0),
    Sketcher.Constraint("Distance", 21, 4.000001),
    Sketcher.Constraint("DistanceX", 0, 1, 0, 2, 82.8),
    Sketcher.Constraint("DistanceY", -1, 1, 4, 3, 4.000001),
    Sketcher.Constraint("DistanceX", 25, 3, -1, 1, 65.0),
    Sketcher.Constraint("DistanceX", 28, 3, -1, 1, 42.0),
    Sketcher.Constraint("DistanceX", 32, 3, -1, 1, 19.0),
    Sketcher.Constraint("DistanceX", 11, 3, 24, 3, 102.0),
    Sketcher.Constraint("DistanceX", 27, 3, 29, 3, 7.0),
    Sketcher.Constraint("DistanceX", 30, 3, 24, 3, 13.0),
    Sketcher.Constraint("DistanceX", 29, 3, 31, 3, 12.0),
    Sketcher.Constraint("DistanceY", 31, 3, 34, 3, 11.0),
    Sketcher.Constraint("DistanceY", 0, 2, 32, 3, 18.0),
    Sketcher.Constraint("Distance", 16, 0.199999),
    Sketcher.Constraint("DistanceX", 11, 3, -1, 1, 107.6),
    Sketcher.Constraint("DistanceY", -1, 1, 22, 3, 34.8),
    Sketcher.Constraint("DistanceY", -1, 1, 23, 3, 7.6),
    Sketcher.Constraint("DistanceY", -1, 1, 25, 3, 21.2),
    Sketcher.Constraint("DistanceX", 27, 3, -1, 1, 43.2),
    Sketcher.Constraint("DistanceY", -1, 1, 27, 3, 12.1),
    Sketcher.Constraint("DistanceY", -1, 1, 31, 3, 15.7),
    Sketcher.Constraint("DistanceY", -1, 1, 33, 3, 30.3),
    Sketcher.Constraint("DistanceY", 6, 2, 14, 3, 3.6),
    Sketcher.Constraint("DistanceX", 23, 3, -1, 1, 78.51),
    Sketcher.Constraint("Radius", 6, 33.783311),
    Sketcher.Constraint("Distance", 3, 20.109801),
    Sketcher.Constraint("DistanceX", 2, 2, 2, 1, 195.886839),
    Sketcher.Constraint("DistanceX", 7, 1, 7, 2, 39.24671),
    Sketcher.Constraint("DistanceY", -1, 1, 21, 2, 31.635599),
    Sketcher.Constraint("DistanceX", 4, 3, 9, 3, 75.154401),
    Sketcher.Constraint("DistanceX", 3, 2, 16, 2, 12.826101),
    Sketcher.Constraint("DistanceX", 22, 3, -1, 1, 184.079668),
    Sketcher.Constraint("DistanceX", 14, 3, 4, 3, 5.860462),
    Sketcher.Constraint("DistanceX", 6, 3, 15, 3, 5.496839),
])
pad6 = body8.newObject("PartDesign::Pad", "Pad005")
pad6.Profile = sketch6
pad6.Length = 2
doc.recompute()

boolean4 = body8.newObject("PartDesign::Boolean", "Boolean003")
boolean4.Type = "Cut"
boolean4.addObjects([body7])
doc.recompute()

boolean5 = body8.newObject("PartDesign::Boolean", "Boolean004")
boolean5.Type = "Fuse"
boolean5.addObjects([body6])
doc.recompute()

boolean6 = body8.newObject("PartDesign::Boolean", "Boolean005")
boolean6.Type = "Cut"
boolean6.addObjects([body5])
doc.recompute()

boolean7 = body8.newObject("PartDesign::Boolean", "Boolean006")
boolean7.Type = "Fuse"
boolean7.addObjects([body4])

doc.recompute()
